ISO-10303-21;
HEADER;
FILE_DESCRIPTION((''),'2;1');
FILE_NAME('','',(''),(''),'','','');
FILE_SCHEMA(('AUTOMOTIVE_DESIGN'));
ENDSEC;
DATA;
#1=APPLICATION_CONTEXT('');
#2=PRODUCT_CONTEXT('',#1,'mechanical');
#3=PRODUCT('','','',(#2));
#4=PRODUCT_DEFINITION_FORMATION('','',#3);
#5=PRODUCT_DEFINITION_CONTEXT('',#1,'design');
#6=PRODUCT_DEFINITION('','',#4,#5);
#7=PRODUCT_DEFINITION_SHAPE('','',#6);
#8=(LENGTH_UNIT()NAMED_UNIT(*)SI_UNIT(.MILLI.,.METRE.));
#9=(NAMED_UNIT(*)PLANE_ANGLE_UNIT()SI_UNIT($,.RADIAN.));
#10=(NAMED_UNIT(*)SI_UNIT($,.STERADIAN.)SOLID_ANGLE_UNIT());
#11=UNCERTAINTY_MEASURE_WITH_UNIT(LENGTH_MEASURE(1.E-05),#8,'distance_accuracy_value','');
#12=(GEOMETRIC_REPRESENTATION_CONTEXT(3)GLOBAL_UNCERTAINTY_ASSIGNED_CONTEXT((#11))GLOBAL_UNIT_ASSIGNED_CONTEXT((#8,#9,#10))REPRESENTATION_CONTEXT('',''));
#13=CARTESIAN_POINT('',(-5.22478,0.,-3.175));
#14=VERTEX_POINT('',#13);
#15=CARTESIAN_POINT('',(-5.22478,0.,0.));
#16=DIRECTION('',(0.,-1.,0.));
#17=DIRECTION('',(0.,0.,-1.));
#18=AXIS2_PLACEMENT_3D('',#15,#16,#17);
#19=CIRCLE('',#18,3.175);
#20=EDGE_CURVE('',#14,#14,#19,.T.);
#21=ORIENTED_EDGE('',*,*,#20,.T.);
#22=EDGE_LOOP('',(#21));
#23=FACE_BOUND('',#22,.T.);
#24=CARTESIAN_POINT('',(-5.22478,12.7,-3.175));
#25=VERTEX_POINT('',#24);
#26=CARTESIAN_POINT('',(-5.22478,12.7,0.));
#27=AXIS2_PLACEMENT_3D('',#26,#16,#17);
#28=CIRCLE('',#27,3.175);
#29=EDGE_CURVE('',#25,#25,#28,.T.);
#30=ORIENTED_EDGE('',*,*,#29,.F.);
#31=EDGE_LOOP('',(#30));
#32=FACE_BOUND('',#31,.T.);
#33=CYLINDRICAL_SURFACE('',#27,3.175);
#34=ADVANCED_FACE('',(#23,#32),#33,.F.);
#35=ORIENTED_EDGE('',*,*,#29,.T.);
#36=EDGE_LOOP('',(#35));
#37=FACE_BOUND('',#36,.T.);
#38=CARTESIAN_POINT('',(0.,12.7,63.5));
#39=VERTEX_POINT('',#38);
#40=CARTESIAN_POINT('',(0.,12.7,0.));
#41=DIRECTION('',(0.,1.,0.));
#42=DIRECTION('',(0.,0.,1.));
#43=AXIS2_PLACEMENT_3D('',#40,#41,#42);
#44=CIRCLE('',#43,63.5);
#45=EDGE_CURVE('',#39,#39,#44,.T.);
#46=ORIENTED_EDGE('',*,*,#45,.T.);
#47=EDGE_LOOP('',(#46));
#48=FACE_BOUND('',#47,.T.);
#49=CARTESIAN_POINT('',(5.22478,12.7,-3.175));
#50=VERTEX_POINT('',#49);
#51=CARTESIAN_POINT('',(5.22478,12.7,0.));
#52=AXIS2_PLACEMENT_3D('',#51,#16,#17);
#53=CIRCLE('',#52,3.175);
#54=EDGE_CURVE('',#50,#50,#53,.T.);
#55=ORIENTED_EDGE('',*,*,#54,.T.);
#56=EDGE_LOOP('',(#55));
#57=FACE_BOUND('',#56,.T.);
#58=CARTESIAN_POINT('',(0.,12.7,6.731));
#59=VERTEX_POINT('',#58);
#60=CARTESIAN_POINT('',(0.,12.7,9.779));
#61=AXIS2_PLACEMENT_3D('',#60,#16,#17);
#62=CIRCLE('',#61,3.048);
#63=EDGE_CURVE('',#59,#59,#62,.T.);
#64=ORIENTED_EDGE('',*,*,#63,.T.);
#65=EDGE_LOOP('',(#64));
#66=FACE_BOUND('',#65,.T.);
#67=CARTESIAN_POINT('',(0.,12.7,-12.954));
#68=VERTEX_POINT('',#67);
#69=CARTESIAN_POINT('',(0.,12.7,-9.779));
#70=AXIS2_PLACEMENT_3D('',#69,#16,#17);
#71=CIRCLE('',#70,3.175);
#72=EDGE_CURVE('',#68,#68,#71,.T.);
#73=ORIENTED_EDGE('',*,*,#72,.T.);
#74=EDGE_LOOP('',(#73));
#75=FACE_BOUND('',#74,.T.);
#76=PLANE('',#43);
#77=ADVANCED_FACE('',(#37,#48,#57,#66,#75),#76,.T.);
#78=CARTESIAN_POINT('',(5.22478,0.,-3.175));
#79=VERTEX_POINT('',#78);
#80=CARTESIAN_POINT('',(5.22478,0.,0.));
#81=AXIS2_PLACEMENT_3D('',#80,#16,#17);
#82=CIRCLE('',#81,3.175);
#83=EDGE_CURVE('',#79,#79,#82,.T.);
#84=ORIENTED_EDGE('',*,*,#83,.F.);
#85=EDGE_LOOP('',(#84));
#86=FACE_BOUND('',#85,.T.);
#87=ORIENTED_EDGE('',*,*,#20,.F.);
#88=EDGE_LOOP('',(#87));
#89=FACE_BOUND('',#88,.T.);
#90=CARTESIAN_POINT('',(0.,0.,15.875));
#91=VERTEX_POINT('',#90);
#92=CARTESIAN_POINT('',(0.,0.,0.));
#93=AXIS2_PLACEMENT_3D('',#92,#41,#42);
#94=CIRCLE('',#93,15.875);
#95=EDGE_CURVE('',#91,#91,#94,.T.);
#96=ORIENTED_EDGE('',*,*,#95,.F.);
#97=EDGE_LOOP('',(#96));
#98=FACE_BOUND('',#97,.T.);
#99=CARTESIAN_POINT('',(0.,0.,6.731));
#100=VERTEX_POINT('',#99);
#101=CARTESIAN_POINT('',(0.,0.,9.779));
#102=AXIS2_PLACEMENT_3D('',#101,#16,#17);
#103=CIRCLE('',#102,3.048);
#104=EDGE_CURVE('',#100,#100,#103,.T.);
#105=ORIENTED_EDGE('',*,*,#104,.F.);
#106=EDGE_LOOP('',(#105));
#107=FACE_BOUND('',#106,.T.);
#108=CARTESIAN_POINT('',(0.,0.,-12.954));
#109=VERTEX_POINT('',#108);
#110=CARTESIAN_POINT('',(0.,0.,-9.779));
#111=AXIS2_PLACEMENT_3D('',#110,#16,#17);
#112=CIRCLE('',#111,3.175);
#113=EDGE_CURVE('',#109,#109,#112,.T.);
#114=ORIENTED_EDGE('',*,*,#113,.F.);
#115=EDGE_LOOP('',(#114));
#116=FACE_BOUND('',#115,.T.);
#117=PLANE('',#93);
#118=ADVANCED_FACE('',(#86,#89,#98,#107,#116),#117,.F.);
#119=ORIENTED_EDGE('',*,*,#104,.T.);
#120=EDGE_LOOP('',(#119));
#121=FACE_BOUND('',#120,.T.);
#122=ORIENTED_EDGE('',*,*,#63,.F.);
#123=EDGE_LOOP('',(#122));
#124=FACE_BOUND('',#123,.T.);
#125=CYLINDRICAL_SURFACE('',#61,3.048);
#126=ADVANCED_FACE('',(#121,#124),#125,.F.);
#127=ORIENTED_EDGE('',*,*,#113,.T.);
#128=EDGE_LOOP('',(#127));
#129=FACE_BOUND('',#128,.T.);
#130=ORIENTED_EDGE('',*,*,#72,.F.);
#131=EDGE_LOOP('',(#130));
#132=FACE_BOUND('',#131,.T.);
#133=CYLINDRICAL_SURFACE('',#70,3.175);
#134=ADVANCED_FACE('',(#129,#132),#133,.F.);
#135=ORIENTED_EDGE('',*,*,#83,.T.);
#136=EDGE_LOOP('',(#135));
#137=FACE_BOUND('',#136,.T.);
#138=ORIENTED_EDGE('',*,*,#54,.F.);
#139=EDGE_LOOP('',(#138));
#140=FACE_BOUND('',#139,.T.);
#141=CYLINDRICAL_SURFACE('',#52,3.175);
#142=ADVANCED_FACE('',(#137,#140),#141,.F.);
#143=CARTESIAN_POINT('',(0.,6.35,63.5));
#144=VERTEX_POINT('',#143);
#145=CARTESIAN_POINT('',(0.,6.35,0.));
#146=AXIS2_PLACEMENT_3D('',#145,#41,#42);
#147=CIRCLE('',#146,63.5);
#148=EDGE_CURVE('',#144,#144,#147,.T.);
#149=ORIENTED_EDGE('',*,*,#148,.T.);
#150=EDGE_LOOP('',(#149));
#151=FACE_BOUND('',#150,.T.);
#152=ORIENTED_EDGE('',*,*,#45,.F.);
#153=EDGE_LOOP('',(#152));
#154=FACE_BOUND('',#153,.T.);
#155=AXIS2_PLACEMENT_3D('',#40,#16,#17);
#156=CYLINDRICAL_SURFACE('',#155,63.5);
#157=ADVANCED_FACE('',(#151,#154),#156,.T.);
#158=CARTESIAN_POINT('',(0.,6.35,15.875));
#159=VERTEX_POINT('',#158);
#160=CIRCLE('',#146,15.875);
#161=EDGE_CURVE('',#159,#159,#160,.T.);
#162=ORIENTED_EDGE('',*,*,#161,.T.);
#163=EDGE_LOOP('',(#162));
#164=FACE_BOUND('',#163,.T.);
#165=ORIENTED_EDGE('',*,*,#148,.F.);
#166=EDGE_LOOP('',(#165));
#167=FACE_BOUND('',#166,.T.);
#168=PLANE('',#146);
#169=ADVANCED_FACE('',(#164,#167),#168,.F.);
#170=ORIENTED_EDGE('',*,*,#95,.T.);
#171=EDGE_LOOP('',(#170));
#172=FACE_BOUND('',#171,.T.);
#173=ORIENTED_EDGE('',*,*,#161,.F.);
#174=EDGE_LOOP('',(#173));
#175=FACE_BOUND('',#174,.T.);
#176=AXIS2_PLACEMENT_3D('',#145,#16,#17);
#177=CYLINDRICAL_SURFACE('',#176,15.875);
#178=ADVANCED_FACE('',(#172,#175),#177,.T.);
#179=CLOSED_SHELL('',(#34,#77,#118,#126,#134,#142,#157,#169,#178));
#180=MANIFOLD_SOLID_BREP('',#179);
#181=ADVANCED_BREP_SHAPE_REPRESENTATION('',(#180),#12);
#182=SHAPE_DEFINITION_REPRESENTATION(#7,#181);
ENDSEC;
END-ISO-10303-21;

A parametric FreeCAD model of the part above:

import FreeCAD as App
import Part
import Sketcher
Q = App.Units.Quantity

doc = App.newDocument("Part")
body = doc.addObject("PartDesign::Body", "Body")

# Sketch on XZ plane
sketch1 = body.newObject("Sketcher::SketchObject", "Sketch")
sketch1.AttachmentSupport = (doc.getObject("XZ_Plane"), [""])
sketch1.MapMode = "FlatFace"
sketch1.addGeometry(Part.Circle(App.Vector(0, 0, 0), App.Vector(0, 0, 1), 16), False)
sketch1.addConstraint(Sketcher.Constraint("Coincident", 0, 3, -1, 1))
sketch1.addConstraint(Sketcher.Constraint("Diameter", 0, Q("1.25 in")))
pad1 = body.newObject("PartDesign::Pad", "Pad")
pad1.Profile = sketch1
pad1.Length = Q("0.25 in")
pad1.Reversed = True

# Sketch on XZ plane
sketch2 = body.newObject("Sketcher::SketchObject", "Sketch001")
sketch2.AttachmentSupport = (doc.getObject("XZ_Plane"), [""])
sketch2.MapMode = "FlatFace"
sketch2.AttachmentOffset = App.Placement(App.Vector(0, 0, -0.25 * 25.4), App.Rotation())
sketch2.addGeometry(Part.Circle(App.Vector(0, 0, 0), App.Vector(0, 0, 1), 64), False)
sketch2.addConstraint(Sketcher.Constraint("Coincident", 0, 3, -1, 1))
sketch2.addConstraint(Sketcher.Constraint("Diameter", 0, Q("5 in")))
pad2 = body.newObject("PartDesign::Pad", "Pad001")
pad2.Profile = sketch2
pad2.Length = Q("0.25 in")
pad2.Reversed = True

# Sketch on XZ plane
sketch3 = body.newObject("Sketcher::SketchObject", "Sketch002")
sketch3.AttachmentSupport = (doc.getObject("XZ_Plane"), [""])
sketch3.MapMode = "FlatFace"
sketch3.addGeometry(Part.Circle(App.Vector(0, 9.8, 0), App.Vector(0, 0, 1), 3), False)
sketch3.addConstraint(Sketcher.Constraint("PointOnObject", 0, 3, -2))
sketch3.addConstraint(Sketcher.Constraint("Diameter", 0, Q("0.24 in")))
sketch3.addConstraint(Sketcher.Constraint("DistanceY", -1, 1, 0, 3, Q("0.385 in")))
pocket1 = body.newObject("PartDesign::Pocket", "Pocket")
pocket1.Profile = sketch3
pocket1.Type = "ThroughAll"

# Sketch on XZ plane
sketch4 = body.newObject("Sketcher::SketchObject", "Sketch003")
sketch4.AttachmentSupport = (doc.getObject("XZ_Plane"), [""])
sketch4.MapMode = "FlatFace"
sketch4.addGeometry(Part.Circle(App.Vector(0, -9.8, 0), App.Vector(0, 0, 1), 3.2), False)
sketch4.addConstraint(Sketcher.Constraint("PointOnObject", 0, 3, -2))
sketch4.addConstraint(Sketcher.Constraint("Diameter", 0, Q("0.25 in")))
sketch4.addConstraint(Sketcher.Constraint("DistanceY", 0, 3, -1, 1, Q("0.385 in")))
pocket2 = body.newObject("PartDesign::Pocket", "Pocket001")
pocket2.Profile = sketch4
pocket2.Length = Q("0.5 in")

# Sketch on XZ plane
sketch5 = body.newObject("Sketcher::SketchObject", "Sketch004")
sketch5.AttachmentSupport = (doc.getObject("XZ_Plane"), [""])
sketch5.MapMode = "FlatFace"
sketch5.addGeometry(Part.Circle(App.Vector(-5.2, 0, 0), App.Vector(0, 0, 1), 3.2), False)
sketch5.addConstraint(Sketcher.Constraint("PointOnObject", 0, 3, -1))
sketch5.addConstraint(Sketcher.Constraint("Diameter", 0, Q("0.25 in")))
sketch5.addConstraint(Sketcher.Constraint("DistanceX", 0, 3, -1, 1, Q("0.2057 in")))
pocket3 = body.newObject("PartDesign::Pocket", "Pocket002")
pocket3.Profile = sketch5
pocket3.Length = Q("0.5 in")

# Sketch on XZ plane
sketch6 = body.newObject("Sketcher::SketchObject", "Sketch005")
sketch6.AttachmentSupport = (doc.getObject("XZ_Plane"), [""])
sketch6.MapMode = "FlatFace"
sketch6.addGeometry(Part.Circle(App.Vector(5.2, 0, 0), App.Vector(0, 0, 1), 3.2), False)
sketch6.addConstraint(Sketcher.Constraint("PointOnObject", 0, 3, -1))
sketch6.addConstraint(Sketcher.Constraint("Diameter", 0, Q("0.25 in")))
sketch6.addConstraint(Sketcher.Constraint("DistanceX", -1, 1, 0, 3, Q("0.2057 in")))
pocket4 = body.newObject("PartDesign::Pocket", "Pocket003")
pocket4.Profile = sketch6
pocket4.Length = Q("0.5 in")

doc.recompute()
